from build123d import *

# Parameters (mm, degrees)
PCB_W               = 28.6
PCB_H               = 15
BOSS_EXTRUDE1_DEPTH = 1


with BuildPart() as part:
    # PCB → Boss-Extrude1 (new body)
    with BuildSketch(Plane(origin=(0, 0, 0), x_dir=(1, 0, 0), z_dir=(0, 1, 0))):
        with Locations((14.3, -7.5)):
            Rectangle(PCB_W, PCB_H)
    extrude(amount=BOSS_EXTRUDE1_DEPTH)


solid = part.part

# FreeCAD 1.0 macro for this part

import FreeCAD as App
import Part
import Sketcher

V = App.Vector
Q = App.Units.Quantity

doc = App.newDocument("Part")
body = doc.addObject("PartDesign::Body", "Body")

# Sketch on XZ plane
sketch1 = doc.addObject("Sketcher::SketchObject", "Sketch")
body.addObject(sketch1)
sketch1.AttachmentSupport = (doc.XZ_Plane, [""])
sketch1.MapMode = "FlatFace"
sketch1.addGeometry([
    Part.LineSegment(V(0, 0, 0), V(0, 15, 0)),
    Part.LineSegment(V(0, 15, 0), V(29, 15, 0)),
    Part.LineSegment(V(29, 15, 0), V(29, 0, 0)),
    Part.LineSegment(V(29, 0, 0), V(0, 0, 0)),
], False)
sketch1.addConstraint([
    Sketcher.Constraint("Coincident", 0, 2, 1, 1),
    Sketcher.Constraint("Coincident", 1, 2, 2, 1),
    Sketcher.Constraint("Coincident", 2, 2, 3, 1),
    Sketcher.Constraint("Coincident", 3, 2, 0, 1),
    Sketcher.Constraint("Vertical", 0),
    Sketcher.Constraint("Horizontal", 1),
    Sketcher.Constraint("Vertical", 2),
    Sketcher.Constraint("Horizontal", 3),
    Sketcher.Constraint("Coincident", 3, 2, -1, 1),
    Sketcher.Constraint("DistanceY", 0, 1, 0, 2, Q("15 mm")),
    Sketcher.Constraint("DistanceX", 1, 1, 1, 2, Q("28.6 mm")),
])
pad1 = doc.addObject("PartDesign::Pad", "Pad")
body.addObject(pad1)
pad1.Profile = sketch1
pad1.Length = 1
pad1.Reversed = True

doc.recompute()
